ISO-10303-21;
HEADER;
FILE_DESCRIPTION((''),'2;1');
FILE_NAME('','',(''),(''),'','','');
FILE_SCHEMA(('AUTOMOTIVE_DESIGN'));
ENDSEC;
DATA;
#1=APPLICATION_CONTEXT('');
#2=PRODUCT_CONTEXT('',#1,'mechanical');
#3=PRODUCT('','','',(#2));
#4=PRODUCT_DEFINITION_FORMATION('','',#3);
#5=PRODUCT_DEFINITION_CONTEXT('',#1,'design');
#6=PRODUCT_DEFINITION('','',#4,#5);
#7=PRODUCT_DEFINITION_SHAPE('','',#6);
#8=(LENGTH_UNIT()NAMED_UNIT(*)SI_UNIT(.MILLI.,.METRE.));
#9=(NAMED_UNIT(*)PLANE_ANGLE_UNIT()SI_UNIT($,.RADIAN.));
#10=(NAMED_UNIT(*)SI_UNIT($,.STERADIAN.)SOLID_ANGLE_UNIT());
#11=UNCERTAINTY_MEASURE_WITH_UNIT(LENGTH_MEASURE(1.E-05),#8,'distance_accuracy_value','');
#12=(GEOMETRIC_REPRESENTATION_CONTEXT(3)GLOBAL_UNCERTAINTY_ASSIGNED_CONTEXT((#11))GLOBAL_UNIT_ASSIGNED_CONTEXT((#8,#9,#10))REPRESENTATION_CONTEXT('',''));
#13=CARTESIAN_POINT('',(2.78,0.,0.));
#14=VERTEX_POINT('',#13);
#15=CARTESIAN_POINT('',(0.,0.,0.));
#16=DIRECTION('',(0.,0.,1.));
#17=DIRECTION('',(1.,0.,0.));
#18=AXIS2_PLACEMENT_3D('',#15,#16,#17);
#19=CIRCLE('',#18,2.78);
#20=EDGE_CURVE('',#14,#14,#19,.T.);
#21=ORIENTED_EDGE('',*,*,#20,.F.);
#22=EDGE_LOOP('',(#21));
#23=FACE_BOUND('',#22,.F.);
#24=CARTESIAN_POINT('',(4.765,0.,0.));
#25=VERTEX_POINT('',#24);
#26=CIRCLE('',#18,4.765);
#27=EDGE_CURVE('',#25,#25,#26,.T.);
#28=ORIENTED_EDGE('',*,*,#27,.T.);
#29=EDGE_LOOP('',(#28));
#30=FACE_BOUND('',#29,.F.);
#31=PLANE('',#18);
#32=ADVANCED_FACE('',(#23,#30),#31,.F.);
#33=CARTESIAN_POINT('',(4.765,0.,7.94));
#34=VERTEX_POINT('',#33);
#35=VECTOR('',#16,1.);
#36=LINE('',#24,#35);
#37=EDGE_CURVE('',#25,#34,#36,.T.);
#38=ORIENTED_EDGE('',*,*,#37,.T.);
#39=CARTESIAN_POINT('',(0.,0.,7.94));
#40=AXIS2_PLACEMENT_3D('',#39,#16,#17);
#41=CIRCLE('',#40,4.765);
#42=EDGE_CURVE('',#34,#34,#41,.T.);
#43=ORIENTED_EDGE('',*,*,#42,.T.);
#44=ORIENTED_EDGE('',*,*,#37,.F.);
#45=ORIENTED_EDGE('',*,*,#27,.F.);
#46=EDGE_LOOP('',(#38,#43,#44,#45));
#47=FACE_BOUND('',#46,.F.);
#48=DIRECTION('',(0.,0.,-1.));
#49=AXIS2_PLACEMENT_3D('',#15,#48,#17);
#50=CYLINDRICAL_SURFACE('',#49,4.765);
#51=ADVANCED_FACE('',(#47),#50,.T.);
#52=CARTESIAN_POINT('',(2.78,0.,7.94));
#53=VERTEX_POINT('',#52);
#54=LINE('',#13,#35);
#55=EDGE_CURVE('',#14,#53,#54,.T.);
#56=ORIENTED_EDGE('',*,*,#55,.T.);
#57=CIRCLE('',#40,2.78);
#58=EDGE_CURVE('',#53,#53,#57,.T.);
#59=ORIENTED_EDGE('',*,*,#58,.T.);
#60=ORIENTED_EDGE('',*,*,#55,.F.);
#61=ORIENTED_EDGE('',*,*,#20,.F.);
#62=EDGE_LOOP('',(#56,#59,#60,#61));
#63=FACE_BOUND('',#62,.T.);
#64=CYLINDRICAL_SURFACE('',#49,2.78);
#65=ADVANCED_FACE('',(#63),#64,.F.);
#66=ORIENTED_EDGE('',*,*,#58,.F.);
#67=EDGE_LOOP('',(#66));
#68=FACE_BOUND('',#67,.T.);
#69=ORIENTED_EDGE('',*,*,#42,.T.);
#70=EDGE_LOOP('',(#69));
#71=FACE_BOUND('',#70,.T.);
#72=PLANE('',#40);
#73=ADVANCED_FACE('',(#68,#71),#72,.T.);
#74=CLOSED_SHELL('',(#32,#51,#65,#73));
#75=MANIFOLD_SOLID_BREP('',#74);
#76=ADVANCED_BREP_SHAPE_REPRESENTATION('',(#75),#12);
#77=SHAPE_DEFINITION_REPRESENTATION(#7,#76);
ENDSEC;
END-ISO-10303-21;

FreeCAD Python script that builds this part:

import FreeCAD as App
import Part
import Sketcher
from FreeCAD import Vector
Q = App.Units.Quantity

doc = App.newDocument("Part")
body = doc.addObject("PartDesign::Body", "Body")

# Sketch on XY plane
sketch1 = body.newObject("Sketcher::SketchObject", "Sketch")
sketch1.AttachmentSupport = (doc.getObject("XY_Plane"), [""])
sketch1.MapMode = "FlatFace"
sketch1.addGeometry([
    Part.Circle(Vector(0, 0, 0), Vector(0, 0, 1), 4.8),
    Part.Circle(Vector(0, 0, 0), Vector(0, 0, 1), 2.8),
], False)
sketch1.addConstraint([
    Sketcher.Constraint("Coincident", 0, 3, -1, 1),
    Sketcher.Constraint("Coincident", 1, 3, -1, 1),
    Sketcher.Constraint("Diameter", 0, Q("9.53 mm")),
    Sketcher.Constraint("Diameter", 1, Q("5.56 mm")),
])
pad1 = body.newObject("PartDesign::Pad", "Pad")
pad1.Profile = sketch1
pad1.Length = 7.94

doc.recompute()
